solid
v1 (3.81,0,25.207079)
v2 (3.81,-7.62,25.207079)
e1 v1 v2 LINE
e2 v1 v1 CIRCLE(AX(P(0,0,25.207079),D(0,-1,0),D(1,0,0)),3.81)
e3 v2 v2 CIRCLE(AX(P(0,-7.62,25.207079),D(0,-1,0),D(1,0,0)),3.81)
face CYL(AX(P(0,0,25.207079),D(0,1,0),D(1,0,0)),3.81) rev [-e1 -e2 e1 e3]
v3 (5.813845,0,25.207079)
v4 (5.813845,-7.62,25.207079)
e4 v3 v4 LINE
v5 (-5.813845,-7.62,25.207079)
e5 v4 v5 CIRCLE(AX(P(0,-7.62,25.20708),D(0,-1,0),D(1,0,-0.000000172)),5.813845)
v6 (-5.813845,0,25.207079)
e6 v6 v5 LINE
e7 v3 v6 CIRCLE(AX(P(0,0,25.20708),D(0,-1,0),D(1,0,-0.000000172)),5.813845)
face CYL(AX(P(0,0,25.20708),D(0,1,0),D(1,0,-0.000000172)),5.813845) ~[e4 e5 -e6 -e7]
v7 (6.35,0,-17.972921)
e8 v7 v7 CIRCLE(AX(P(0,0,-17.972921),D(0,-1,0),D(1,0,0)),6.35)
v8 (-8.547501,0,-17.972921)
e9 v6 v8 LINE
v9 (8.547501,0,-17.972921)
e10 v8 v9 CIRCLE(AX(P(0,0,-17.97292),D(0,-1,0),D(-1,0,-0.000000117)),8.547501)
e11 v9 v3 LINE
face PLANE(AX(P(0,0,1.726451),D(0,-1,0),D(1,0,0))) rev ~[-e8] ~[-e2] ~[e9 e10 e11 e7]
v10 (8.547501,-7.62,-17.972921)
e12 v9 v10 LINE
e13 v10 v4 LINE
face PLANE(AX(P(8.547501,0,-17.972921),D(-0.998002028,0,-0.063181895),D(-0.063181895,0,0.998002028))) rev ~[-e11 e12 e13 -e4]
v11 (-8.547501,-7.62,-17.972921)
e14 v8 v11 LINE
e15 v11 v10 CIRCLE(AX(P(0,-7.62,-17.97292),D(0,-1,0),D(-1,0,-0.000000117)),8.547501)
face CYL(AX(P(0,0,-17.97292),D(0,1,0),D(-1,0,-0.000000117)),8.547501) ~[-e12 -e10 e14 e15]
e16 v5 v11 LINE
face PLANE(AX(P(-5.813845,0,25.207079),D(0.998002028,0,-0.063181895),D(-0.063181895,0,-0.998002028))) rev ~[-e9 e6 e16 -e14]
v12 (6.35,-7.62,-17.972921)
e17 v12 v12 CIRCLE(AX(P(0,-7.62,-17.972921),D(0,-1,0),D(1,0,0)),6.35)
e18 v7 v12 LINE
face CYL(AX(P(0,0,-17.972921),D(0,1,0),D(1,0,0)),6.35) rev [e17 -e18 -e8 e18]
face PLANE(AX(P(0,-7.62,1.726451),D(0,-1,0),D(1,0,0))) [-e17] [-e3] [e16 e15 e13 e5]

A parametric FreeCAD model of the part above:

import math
import FreeCAD as App
import Part
import Sketcher
from FreeCAD import Vector
Q = App.Units.Quantity

doc = App.newDocument("Part")
body = doc.addObject("PartDesign::Body", "Body")

# Sketch on XZ plane
sketch1 = body.newObject("Sketcher::SketchObject", "Sketch")
sketch1.AttachmentSupport = (doc.getObject("XZ_Plane"), [""])
sketch1.MapMode = "FlatFace"
sketch1.addGeometry(Part.ArcOfCircle(Part.Circle(Vector(0, -18, 0), Vector(0, 0, 1), 8.5), math.radians(-180), math.radians(0)), False)
sketch1.addGeometry(Part.LineSegment(Vector(8.5, -18, 0), Vector(5.8, 25.2, 0)), False)
sketch1.addGeometry(Part.ArcOfCircle(Part.Circle(Vector(0, 25.2, 0), Vector(0, 0, 1), 5.8), math.radians(0), math.radians(180)), False)
sketch1.addGeometry(Part.LineSegment(Vector(-5.8, 25.2, 0), Vector(-8.5, -18, 0)), False)
sketch1.addGeometry(Part.Circle(Vector(0, -18, 0), Vector(0, 0, 1), 6.3), False)
sketch1.addGeometry(Part.Circle(Vector(0, 25.2, 0), Vector(0, 0, 1), 3.8), False)
sketch1.addConstraint(Sketcher.Constraint("Coincident", 0, 2, 1, 1))
sketch1.addConstraint(Sketcher.Constraint("Coincident", 1, 2, 2, 1))
sketch1.addConstraint(Sketcher.Constraint("Coincident", 2, 2, 3, 1))
sketch1.addConstraint(Sketcher.Constraint("Coincident", 3, 2, 0, 1))
sketch1.addConstraint(Sketcher.Constraint("Coincident", 4, 3, 0, 3))
sketch1.addConstraint(Sketcher.Constraint("Coincident", 5, 3, 2, 3))
sketch1.addConstraint(Sketcher.Constraint("Symmetric", 1, 2, 2, 2, -2))
sketch1.addConstraint(Sketcher.Constraint("Symmetric", 0, 2, 3, 2, -2))
sketch1.addConstraint(Sketcher.Constraint("Horizontal", 4, 3, 0, 2))
sketch1.addConstraint(Sketcher.Constraint("Horizontal", 5, 3, 1, 2))
sketch1.addConstraint(Sketcher.Constraint("Diameter", 4, Q("0.5 in")))
sketch1.addConstraint(Sketcher.Constraint("Diameter", 5, Q("0.3 in")))
sketch1.addConstraint(Sketcher.Constraint("DistanceY", 0, 3, 2, 3, Q("1.7 in")))
sketch1.addConstraint(Sketcher.Constraint("Radius", 0, 8.547501))
sketch1.addConstraint(Sketcher.Constraint("Radius", 2, 5.813845))
sketch1.addConstraint(Sketcher.Constraint("DistanceY", 0, 3, -1, 1, 17.97292))
pad1 = body.newObject("PartDesign::Pad", "Pad")
pad1.Profile = sketch1
pad1.Length = Q("0.3 in")

doc.recompute()
